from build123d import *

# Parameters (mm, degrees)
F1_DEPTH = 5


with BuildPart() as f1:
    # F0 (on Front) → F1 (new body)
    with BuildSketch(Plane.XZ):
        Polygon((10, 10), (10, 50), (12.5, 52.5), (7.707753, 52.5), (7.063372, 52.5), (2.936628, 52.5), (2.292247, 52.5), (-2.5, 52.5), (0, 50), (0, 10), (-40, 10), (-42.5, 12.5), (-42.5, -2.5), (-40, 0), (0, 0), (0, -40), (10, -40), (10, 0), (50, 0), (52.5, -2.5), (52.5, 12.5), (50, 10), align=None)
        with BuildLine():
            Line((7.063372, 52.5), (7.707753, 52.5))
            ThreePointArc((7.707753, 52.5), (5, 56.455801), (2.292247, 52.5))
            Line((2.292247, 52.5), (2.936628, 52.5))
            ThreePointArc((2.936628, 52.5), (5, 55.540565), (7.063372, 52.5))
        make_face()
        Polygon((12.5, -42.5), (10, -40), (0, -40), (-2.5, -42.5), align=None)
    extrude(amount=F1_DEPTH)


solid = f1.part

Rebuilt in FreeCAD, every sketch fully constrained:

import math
import FreeCAD as App
import Part
import Sketcher
from FreeCAD import Vector
Q = App.Units.Quantity

doc = App.newDocument("Part")
body = doc.addObject("PartDesign::Body", "Body")

sketch1 = body.newObject("Sketcher::SketchObject", "Sketch")
sketch1.AttachmentSupport = (doc.getObject("XZ_Plane"), [""])
sketch1.MapMode = "FlatFace"
sketch1.addGeometry([
    Part.LineSegment(Vector(10, 10, 0), Vector(10, 50, 0)),
    Part.LineSegment(Vector(10, 50, 0), Vector(12.5, 52.5, 0)),
    Part.LineSegment(Vector(12.5, 52.5, 0), Vector(7.7, 52.5, 0)),
    Part.ArcOfCircle(Part.Circle(Vector(5, 53.6, 0), Vector(0, 0, 1), 2.9), math.radians(-21), math.radians(201)),
    Part.LineSegment(Vector(2.3, 52.5, 0), Vector(-2.5, 52.5, 0)),
    Part.LineSegment(Vector(-2.5, 52.5, 0), Vector(0, 50, 0)),
    Part.LineSegment(Vector(0, 50, 0), Vector(0, 10, 0)),
    Part.LineSegment(Vector(0, 10, 0), Vector(-40, 10, 0)),
    Part.LineSegment(Vector(-40, 10, 0), Vector(-42.5, 12.5, 0)),
    Part.LineSegment(Vector(-42.5, 12.5, 0), Vector(-42.5, -2.5, 0)),
    Part.LineSegment(Vector(-42.5, -2.5, 0), Vector(-40, 0, 0)),
    Part.LineSegment(Vector(-40, 0, 0), Vector(0, 0, 0)),
    Part.LineSegment(Vector(0, 0, 0), Vector(0, -40, 0)),
    Part.LineSegment(Vector(0, -40, 0), Vector(-2.5, -42.5, 0)),
    Part.LineSegment(Vector(-2.5, -42.5, 0), Vector(12.5, -42.5, 0)),
    Part.LineSegment(Vector(12.5, -42.5, 0), Vector(10, -40, 0)),
    Part.LineSegment(Vector(10, -40, 0), Vector(10, 0, 0)),
    Part.LineSegment(Vector(10, 0, 0), Vector(50, 0, 0)),
    Part.LineSegment(Vector(50, 0, 0), Vector(52.5, -2.5, 0)),
    Part.LineSegment(Vector(52.5, -2.5, 0), Vector(52.5, 12.5, 0)),
    Part.LineSegment(Vector(52.5, 12.5, 0), Vector(50, 10, 0)),
    Part.LineSegment(Vector(50, 10, 0), Vector(10, 10, 0)),
    Part.LineSegment(Vector(7.1, 52.5, 0), Vector(2.9, 52.5, 0)),
    Part.ArcOfCircle(Part.Circle(Vector(5, 53.3, 0), Vector(0, 0, 1), 2.2), math.radians(-22), math.radians(202)),
], False)
sketch1.addConstraint([
    Sketcher.Constraint("Coincident", 0, 2, 1, 1),
    Sketcher.Constraint("Coincident", 1, 2, 2, 1),
    Sketcher.Constraint("Coincident", 2, 2, 3, 1),
    Sketcher.Constraint("Coincident", 3, 2, 4, 1),
    Sketcher.Constraint("Coincident", 4, 2, 5, 1),
    Sketcher.Constraint("Coincident", 5, 2, 6, 1),
    Sketcher.Constraint("Coincident", 6, 2, 7, 1),
    Sketcher.Constraint("Coincident", 7, 2, 8, 1),
    Sketcher.Constraint("Coincident", 8, 2, 9, 1),
    Sketcher.Constraint("Coincident", 9, 2, 10, 1),
    Sketcher.Constraint("Coincident", 10, 2, 11, 1),
    Sketcher.Constraint("Coincident", 11, 2, 12, 1),
    Sketcher.Constraint("Coincident", 12, 2, 13, 1),
    Sketcher.Constraint("Coincident", 13, 2, 14, 1),
    Sketcher.Constraint("Coincident", 14, 2, 15, 1),
    Sketcher.Constraint("Coincident", 15, 2, 16, 1),
    Sketcher.Constraint("Coincident", 16, 2, 17, 1),
    Sketcher.Constraint("Coincident", 17, 2, 18, 1),
    Sketcher.Constraint("Coincident", 18, 2, 19, 1),
    Sketcher.Constraint("Coincident", 19, 2, 20, 1),
    Sketcher.Constraint("Coincident", 20, 2, 21, 1),
    Sketcher.Constraint("Coincident", 21, 2, 0, 1),
    Sketcher.Constraint("Coincident", 22, 1, 23, 1),
    Sketcher.Constraint("Coincident", 23, 2, 22, 2),
    Sketcher.Constraint("Vertical", 0),
    Sketcher.Constraint("Horizontal", 2),
    Sketcher.Constraint("Horizontal", 4),
    Sketcher.Constraint("Vertical", 6),
    Sketcher.Constraint("Horizontal", 7),
    Sketcher.Constraint("Vertical", 9),
    Sketcher.Constraint("Horizontal", 11),
    Sketcher.Constraint("Vertical", 12),
    Sketcher.Constraint("Horizontal", 14),
    Sketcher.Constraint("Vertical", 16),
    Sketcher.Constraint("Horizontal", 17),
    Sketcher.Constraint("Vertical", 19),
    Sketcher.Constraint("Horizontal", 21),
    Sketcher.Constraint("Horizontal", 22),
    Sketcher.Constraint("Coincident", 11, 2, -1, 1),
    Sketcher.Constraint("PointOnObject", 5, 2, -2),
    Sketcher.Constraint("PointOnObject", 16, 2, -1),
    Sketcher.Constraint("Perpendicular", 1, 5),
    Sketcher.Constraint("Parallel", 5, 8),
    Sketcher.Constraint("Perpendicular", 8, 10),
    Sketcher.Constraint("Parallel", 10, 13),
    Sketcher.Constraint("Perpendicular", 13, 15),
    Sketcher.Constraint("Parallel", 15, 18),
    Sketcher.Constraint("Perpendicular", 18, 20),
    Sketcher.Constraint("Horizontal", 2, 2, 3, 2),
    Sketcher.Constraint("Horizontal", 0, 2, 5, 2),
    Sketcher.Constraint("Horizontal", 12, 2, 15, 2),
    Sketcher.Constraint("Horizontal", 9, 2, 18, 2),
    Sketcher.Constraint("Horizontal", 8, 2, 19, 2),
    Sketcher.Constraint("Horizontal", 7, 2, 20, 2),
    Sketcher.Constraint("Horizontal", 4, 2, 22, 1),
    Sketcher.Constraint("Vertical", 3, 3, 23, 3),
    Sketcher.Constraint("Vertical", 7, 2, 10, 2),
    Sketcher.Constraint("Vertical", 4, 2, 13, 2),
    Sketcher.Constraint("Vertical", 1, 2, 14, 2),
    Sketcher.Constraint("Vertical", 0, 2, 15, 2),
    Sketcher.Constraint("Equal", 2, 4),
    Sketcher.Constraint("Equal", 11, 17),
    Sketcher.Constraint("Equal", 21, 0),
    Sketcher.Constraint("Equal", 14, 9),
    Sketcher.Constraint("Equal", 6, 12),
    Sketcher.Constraint("Equal", 5, 8),
    Sketcher.Constraint("DistanceX", 7, 2, 7, 1, Q("40 mm")),
    Sketcher.Constraint("DistanceX", 14, 1, 14, 2, Q("15 mm")),
    Sketcher.Constraint("DistanceX", -1, 1, 3, 3, Q("5 mm")),
    Sketcher.Constraint("Radius", 23, Q("2.2204 mm")),
    Sketcher.Constraint("Radius", 3, Q("2.904631 mm")),
    Sketcher.Constraint("DistanceX", 2, 2, 2, 1, Q("4.792247 mm")),
    Sketcher.Constraint("DistanceX", 22, 2, 22, 1, Q("4.126744 mm")),
])
pad1 = body.newObject("PartDesign::Pad", "Pad")
pad1.Profile = sketch1
pad1.Length = 5

doc.recompute()
